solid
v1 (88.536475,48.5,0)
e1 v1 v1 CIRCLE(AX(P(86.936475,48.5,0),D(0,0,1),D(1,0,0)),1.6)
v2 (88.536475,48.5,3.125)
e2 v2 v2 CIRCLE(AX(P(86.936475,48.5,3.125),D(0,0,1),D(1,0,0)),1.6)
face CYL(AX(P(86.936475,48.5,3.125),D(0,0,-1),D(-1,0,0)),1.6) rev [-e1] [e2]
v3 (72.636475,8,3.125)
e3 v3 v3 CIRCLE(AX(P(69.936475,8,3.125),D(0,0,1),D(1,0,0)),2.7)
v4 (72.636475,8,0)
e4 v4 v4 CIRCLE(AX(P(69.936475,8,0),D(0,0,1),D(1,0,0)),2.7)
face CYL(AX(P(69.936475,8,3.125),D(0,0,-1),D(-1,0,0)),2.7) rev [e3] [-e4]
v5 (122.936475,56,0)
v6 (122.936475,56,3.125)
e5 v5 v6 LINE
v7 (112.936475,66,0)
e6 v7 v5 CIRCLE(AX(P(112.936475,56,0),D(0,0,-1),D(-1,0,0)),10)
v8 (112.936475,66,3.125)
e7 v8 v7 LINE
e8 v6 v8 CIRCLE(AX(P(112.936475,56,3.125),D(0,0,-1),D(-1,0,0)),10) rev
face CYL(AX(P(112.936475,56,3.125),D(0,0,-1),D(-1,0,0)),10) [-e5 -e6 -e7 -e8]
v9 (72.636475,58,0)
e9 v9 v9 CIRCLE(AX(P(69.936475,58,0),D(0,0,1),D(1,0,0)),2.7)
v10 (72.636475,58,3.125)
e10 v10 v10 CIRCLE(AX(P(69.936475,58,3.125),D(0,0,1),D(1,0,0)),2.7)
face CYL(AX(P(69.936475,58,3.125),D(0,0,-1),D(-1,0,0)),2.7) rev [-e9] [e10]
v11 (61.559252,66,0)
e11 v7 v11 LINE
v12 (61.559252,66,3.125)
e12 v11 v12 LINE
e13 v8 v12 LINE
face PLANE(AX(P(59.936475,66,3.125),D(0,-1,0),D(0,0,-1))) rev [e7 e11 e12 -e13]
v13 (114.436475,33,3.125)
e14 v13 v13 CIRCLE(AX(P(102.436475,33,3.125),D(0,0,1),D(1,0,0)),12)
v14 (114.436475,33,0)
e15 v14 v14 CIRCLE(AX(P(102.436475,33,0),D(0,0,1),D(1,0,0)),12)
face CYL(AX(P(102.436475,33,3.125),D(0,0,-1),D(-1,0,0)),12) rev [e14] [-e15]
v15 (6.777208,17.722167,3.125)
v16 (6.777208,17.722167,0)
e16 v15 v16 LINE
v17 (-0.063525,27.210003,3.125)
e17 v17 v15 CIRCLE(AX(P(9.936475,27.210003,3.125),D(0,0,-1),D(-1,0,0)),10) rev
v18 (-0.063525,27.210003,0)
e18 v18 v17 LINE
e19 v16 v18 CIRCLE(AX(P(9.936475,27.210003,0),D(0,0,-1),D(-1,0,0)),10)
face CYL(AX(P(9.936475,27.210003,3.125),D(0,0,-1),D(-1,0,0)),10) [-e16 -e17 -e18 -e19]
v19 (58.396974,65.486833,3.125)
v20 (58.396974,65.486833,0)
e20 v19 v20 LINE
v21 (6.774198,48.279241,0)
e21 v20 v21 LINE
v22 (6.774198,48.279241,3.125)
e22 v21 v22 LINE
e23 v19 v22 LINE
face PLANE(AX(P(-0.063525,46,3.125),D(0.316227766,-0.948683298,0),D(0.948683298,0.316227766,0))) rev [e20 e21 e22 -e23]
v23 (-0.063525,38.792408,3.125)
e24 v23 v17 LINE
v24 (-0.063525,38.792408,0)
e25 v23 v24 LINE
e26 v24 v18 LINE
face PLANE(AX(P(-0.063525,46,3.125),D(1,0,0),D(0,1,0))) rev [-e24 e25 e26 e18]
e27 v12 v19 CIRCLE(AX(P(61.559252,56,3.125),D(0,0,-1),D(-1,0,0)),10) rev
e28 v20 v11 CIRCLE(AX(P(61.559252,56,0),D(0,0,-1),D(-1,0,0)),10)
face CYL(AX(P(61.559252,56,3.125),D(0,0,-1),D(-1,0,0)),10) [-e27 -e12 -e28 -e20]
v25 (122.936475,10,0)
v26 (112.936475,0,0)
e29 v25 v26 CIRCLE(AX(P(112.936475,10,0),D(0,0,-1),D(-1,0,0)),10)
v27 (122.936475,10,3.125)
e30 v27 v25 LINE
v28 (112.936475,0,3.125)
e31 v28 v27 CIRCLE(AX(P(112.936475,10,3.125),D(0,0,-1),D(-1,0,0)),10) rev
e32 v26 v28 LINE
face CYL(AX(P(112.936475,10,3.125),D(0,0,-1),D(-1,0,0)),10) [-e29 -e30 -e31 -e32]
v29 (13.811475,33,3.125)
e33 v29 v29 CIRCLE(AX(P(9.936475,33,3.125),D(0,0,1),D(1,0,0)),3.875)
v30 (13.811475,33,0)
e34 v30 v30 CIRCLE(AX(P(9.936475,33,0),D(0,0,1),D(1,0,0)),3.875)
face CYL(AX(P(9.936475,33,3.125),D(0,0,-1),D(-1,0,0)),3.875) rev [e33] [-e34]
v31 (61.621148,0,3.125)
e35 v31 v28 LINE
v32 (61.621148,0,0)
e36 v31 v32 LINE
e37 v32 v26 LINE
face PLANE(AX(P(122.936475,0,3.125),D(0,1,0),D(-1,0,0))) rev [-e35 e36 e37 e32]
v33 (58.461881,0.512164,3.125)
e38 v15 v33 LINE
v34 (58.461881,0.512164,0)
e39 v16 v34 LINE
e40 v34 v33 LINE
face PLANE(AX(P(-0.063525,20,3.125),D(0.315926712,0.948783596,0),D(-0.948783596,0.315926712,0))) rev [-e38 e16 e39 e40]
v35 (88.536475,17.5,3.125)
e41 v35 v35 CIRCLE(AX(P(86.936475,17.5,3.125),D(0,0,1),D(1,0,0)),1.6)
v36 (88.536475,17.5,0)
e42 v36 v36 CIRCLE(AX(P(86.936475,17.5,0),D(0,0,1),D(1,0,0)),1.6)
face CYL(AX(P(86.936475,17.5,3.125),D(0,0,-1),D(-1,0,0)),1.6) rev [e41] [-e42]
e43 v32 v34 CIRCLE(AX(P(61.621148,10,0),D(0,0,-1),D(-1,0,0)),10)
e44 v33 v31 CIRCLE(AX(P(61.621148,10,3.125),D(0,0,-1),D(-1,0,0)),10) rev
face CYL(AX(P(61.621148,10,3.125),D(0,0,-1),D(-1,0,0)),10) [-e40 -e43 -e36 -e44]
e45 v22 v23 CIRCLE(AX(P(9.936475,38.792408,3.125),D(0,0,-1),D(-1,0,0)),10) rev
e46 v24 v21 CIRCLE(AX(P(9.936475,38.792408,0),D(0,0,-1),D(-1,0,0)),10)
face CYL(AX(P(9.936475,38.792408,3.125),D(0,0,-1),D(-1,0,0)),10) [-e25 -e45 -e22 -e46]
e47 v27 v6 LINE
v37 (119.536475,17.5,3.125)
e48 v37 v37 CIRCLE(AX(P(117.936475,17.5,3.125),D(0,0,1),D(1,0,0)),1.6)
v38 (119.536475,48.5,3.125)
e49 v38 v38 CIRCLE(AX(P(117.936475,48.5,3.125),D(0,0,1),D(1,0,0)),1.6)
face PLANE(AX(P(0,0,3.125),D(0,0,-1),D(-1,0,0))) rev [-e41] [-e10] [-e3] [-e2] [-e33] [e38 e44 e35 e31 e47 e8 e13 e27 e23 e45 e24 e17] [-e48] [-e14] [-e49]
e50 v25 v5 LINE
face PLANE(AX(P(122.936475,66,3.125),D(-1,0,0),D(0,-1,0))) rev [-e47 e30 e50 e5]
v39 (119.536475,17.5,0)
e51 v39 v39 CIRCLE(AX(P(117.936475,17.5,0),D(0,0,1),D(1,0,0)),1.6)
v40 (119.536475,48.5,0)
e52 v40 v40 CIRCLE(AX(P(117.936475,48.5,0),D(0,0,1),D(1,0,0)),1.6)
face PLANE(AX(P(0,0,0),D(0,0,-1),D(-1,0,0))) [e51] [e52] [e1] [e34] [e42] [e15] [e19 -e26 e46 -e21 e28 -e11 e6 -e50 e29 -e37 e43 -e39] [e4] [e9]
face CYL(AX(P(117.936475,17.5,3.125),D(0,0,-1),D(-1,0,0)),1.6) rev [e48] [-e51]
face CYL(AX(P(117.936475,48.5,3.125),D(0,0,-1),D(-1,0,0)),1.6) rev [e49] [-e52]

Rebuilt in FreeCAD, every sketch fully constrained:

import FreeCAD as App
import Part
import Sketcher
from FreeCAD import Vector
Q = App.Units.Quantity


def edges_at(feature, points):
    """Names of the edges that pass closest to the given points."""
    edges = feature.Shape.Edges
    near = lambda p: min(range(len(edges)), key=lambda i: edges[i].distToShape(Part.Vertex(*p))[0])
    return sorted({f"Edge{near(p) + 1}" for p in points})

doc = App.newDocument("Part")
body = doc.addObject("PartDesign::Body", "Body")

# Sketch on XY plane
sketch1 = body.newObject("Sketcher::SketchObject", "Sketch")
sketch1.AttachmentSupport = (doc.getObject("XY_Plane"), [""])
sketch1.MapMode = "FlatFace"
sketch1.addGeometry([
    Part.LineSegment(Vector(-0.063525, 46, 0), Vector(-0.063525, 20, 0)),  # 0
    Part.LineSegment(Vector(-0.063525, 20, 0), Vector(60, 0, 0)),  # 1
    Part.LineSegment(Vector(60, 0, 0), Vector(122.936475, 0, 0)),  # 2
    Part.LineSegment(Vector(122.936475, 0, 0), Vector(122.936475, 66, 0)),  # 3
    Part.LineSegment(Vector(122.936475, 66, 0), Vector(59.936475, 66, 0)),  # 4
    Part.LineSegment(Vector(59.936475, 66, 0), Vector(-0.063525, 46, 0)),  # 5
    Part.Circle(Vector(69.936475, 8, 0), Vector(0, 0, 1), 2.7),  # 6
    Part.Circle(Vector(86.936475, 17.5, 0), Vector(0, 0, 1), 1.6),  # 7
    Part.Circle(Vector(117.936475, 17.5, 0), Vector(0, 0, 1), 1.6),  # 8
    Part.Circle(Vector(9.936475, 33, 0), Vector(0, 0, 1), 3.875),  # 9
    Part.Circle(Vector(102.436475, 33, 0), Vector(0, 0, 1), 12),  # 10
    Part.Circle(Vector(86.936475, 48.5, 0), Vector(0, 0, 1), 1.6),  # 11
    Part.Circle(Vector(69.936475, 58, 0), Vector(0, 0, 1), 2.7),  # 12
    Part.Circle(Vector(117.936475, 48.5, 0), Vector(0, 0, 1), 1.6),  # 13
], False)
sketch1.addConstraint([
    Sketcher.Constraint("Coincident", 0, 2, 1, 1),
    Sketcher.Constraint("Coincident", 1, 2, 2, 1),
    Sketcher.Constraint("Coincident", 2, 2, 3, 1),
    Sketcher.Constraint("Coincident", 3, 2, 4, 1),
    Sketcher.Constraint("Coincident", 4, 2, 5, 1),
    Sketcher.Constraint("Coincident", 5, 2, 0, 1),
    Sketcher.Constraint("Vertical", 0),
    Sketcher.Constraint("Horizontal", 2),
    Sketcher.Constraint("Vertical", 3),
    Sketcher.Constraint("Horizontal", 4),
    Sketcher.Constraint("Equal", 7, 8),
    Sketcher.Constraint("Equal", 8, 11),
    Sketcher.Constraint("Equal", 6, 12),
    Sketcher.Constraint("Equal", 11, 13),
    Sketcher.Constraint("PointOnObject", 1, 2, -1),
    Sketcher.Constraint("Horizontal", 7, 3, 8, 3),
    Sketcher.Constraint("Horizontal", 9, 3, 10, 3),
    Sketcher.Constraint("Horizontal", 11, 3, 13, 3),
    Sketcher.Constraint("Vertical", 7, 3, 11, 3),
    Sketcher.Constraint("Vertical", 6, 3, 12, 3),
    Sketcher.Constraint("Vertical", 8, 3, 13, 3),
    Sketcher.Constraint("Diameter", 10, Q("24 mm")),
    Sketcher.Constraint("Diameter", 6, Q("5.4 mm")),
    Sketcher.Constraint("Diameter", 7, Q("3.2 mm")),
    Sketcher.Constraint("Diameter", 9, Q("7.75 mm")),
    Sketcher.Constraint("DistanceX", 4, 2, 4, 1, Q("63 mm")),
    Sketcher.Constraint("DistanceY", 0, 2, 0, 1, Q("26 mm")),
    Sketcher.Constraint("DistanceY", 3, 1, 3, 2, Q("66 mm")),
    Sketcher.Constraint("DistanceY", -1, 1, 6, 3, Q("8 mm")),
    Sketcher.Constraint("DistanceY", -1, 1, 9, 3, Q("33 mm")),
    Sketcher.Constraint("DistanceY", -1, 1, 12, 3, Q("58 mm")),
    Sketcher.Constraint("DistanceY", -1, 1, 0, 2, Q("20 mm")),
    Sketcher.Constraint("DistanceX", -1, 1, 1, 2, Q("60 mm")),
    Sketcher.Constraint("DistanceX", 6, 3, 7, 3, Q("17 mm")),
    Sketcher.Constraint("DistanceX", 7, 3, 8, 3, Q("31 mm")),
    Sketcher.Constraint("DistanceX", 9, 3, 6, 3, Q("60 mm")),
    Sketcher.Constraint("DistanceY", 7, 3, 11, 3, Q("31 mm")),
    Sketcher.Constraint("DistanceX", 0, 2, 9, 3, Q("10 mm")),
    Sketcher.Constraint("DistanceX", 8, 3, 2, 2, Q("5 mm")),
    Sketcher.Constraint("DistanceY", -1, 1, 7, 3, Q("17.5 mm")),
    Sketcher.Constraint("DistanceX", 7, 3, 10, 3, Q("15.5 mm")),
    Sketcher.Constraint("Distance", 1, Q("63.305821 mm")),
])
pad1 = body.newObject("PartDesign::Pad", "Pad")
pad1.Profile = sketch1
pad1.Length = 3.125
doc.recompute()

fillet = body.newObject("PartDesign::Fillet", "Fillet")
fillet.Base = (pad1, edges_at(pad1, [
    (59.936, 66, 1.562),
    (122.936, 66, 1.562),
    (122.936, 0, 1.562),
    (60, 0, 1.562),
    (-0.064, 20, 1.562),
    (-0.064, 46, 1.562),
]))
fillet.Radius = 10

doc.recompute()
